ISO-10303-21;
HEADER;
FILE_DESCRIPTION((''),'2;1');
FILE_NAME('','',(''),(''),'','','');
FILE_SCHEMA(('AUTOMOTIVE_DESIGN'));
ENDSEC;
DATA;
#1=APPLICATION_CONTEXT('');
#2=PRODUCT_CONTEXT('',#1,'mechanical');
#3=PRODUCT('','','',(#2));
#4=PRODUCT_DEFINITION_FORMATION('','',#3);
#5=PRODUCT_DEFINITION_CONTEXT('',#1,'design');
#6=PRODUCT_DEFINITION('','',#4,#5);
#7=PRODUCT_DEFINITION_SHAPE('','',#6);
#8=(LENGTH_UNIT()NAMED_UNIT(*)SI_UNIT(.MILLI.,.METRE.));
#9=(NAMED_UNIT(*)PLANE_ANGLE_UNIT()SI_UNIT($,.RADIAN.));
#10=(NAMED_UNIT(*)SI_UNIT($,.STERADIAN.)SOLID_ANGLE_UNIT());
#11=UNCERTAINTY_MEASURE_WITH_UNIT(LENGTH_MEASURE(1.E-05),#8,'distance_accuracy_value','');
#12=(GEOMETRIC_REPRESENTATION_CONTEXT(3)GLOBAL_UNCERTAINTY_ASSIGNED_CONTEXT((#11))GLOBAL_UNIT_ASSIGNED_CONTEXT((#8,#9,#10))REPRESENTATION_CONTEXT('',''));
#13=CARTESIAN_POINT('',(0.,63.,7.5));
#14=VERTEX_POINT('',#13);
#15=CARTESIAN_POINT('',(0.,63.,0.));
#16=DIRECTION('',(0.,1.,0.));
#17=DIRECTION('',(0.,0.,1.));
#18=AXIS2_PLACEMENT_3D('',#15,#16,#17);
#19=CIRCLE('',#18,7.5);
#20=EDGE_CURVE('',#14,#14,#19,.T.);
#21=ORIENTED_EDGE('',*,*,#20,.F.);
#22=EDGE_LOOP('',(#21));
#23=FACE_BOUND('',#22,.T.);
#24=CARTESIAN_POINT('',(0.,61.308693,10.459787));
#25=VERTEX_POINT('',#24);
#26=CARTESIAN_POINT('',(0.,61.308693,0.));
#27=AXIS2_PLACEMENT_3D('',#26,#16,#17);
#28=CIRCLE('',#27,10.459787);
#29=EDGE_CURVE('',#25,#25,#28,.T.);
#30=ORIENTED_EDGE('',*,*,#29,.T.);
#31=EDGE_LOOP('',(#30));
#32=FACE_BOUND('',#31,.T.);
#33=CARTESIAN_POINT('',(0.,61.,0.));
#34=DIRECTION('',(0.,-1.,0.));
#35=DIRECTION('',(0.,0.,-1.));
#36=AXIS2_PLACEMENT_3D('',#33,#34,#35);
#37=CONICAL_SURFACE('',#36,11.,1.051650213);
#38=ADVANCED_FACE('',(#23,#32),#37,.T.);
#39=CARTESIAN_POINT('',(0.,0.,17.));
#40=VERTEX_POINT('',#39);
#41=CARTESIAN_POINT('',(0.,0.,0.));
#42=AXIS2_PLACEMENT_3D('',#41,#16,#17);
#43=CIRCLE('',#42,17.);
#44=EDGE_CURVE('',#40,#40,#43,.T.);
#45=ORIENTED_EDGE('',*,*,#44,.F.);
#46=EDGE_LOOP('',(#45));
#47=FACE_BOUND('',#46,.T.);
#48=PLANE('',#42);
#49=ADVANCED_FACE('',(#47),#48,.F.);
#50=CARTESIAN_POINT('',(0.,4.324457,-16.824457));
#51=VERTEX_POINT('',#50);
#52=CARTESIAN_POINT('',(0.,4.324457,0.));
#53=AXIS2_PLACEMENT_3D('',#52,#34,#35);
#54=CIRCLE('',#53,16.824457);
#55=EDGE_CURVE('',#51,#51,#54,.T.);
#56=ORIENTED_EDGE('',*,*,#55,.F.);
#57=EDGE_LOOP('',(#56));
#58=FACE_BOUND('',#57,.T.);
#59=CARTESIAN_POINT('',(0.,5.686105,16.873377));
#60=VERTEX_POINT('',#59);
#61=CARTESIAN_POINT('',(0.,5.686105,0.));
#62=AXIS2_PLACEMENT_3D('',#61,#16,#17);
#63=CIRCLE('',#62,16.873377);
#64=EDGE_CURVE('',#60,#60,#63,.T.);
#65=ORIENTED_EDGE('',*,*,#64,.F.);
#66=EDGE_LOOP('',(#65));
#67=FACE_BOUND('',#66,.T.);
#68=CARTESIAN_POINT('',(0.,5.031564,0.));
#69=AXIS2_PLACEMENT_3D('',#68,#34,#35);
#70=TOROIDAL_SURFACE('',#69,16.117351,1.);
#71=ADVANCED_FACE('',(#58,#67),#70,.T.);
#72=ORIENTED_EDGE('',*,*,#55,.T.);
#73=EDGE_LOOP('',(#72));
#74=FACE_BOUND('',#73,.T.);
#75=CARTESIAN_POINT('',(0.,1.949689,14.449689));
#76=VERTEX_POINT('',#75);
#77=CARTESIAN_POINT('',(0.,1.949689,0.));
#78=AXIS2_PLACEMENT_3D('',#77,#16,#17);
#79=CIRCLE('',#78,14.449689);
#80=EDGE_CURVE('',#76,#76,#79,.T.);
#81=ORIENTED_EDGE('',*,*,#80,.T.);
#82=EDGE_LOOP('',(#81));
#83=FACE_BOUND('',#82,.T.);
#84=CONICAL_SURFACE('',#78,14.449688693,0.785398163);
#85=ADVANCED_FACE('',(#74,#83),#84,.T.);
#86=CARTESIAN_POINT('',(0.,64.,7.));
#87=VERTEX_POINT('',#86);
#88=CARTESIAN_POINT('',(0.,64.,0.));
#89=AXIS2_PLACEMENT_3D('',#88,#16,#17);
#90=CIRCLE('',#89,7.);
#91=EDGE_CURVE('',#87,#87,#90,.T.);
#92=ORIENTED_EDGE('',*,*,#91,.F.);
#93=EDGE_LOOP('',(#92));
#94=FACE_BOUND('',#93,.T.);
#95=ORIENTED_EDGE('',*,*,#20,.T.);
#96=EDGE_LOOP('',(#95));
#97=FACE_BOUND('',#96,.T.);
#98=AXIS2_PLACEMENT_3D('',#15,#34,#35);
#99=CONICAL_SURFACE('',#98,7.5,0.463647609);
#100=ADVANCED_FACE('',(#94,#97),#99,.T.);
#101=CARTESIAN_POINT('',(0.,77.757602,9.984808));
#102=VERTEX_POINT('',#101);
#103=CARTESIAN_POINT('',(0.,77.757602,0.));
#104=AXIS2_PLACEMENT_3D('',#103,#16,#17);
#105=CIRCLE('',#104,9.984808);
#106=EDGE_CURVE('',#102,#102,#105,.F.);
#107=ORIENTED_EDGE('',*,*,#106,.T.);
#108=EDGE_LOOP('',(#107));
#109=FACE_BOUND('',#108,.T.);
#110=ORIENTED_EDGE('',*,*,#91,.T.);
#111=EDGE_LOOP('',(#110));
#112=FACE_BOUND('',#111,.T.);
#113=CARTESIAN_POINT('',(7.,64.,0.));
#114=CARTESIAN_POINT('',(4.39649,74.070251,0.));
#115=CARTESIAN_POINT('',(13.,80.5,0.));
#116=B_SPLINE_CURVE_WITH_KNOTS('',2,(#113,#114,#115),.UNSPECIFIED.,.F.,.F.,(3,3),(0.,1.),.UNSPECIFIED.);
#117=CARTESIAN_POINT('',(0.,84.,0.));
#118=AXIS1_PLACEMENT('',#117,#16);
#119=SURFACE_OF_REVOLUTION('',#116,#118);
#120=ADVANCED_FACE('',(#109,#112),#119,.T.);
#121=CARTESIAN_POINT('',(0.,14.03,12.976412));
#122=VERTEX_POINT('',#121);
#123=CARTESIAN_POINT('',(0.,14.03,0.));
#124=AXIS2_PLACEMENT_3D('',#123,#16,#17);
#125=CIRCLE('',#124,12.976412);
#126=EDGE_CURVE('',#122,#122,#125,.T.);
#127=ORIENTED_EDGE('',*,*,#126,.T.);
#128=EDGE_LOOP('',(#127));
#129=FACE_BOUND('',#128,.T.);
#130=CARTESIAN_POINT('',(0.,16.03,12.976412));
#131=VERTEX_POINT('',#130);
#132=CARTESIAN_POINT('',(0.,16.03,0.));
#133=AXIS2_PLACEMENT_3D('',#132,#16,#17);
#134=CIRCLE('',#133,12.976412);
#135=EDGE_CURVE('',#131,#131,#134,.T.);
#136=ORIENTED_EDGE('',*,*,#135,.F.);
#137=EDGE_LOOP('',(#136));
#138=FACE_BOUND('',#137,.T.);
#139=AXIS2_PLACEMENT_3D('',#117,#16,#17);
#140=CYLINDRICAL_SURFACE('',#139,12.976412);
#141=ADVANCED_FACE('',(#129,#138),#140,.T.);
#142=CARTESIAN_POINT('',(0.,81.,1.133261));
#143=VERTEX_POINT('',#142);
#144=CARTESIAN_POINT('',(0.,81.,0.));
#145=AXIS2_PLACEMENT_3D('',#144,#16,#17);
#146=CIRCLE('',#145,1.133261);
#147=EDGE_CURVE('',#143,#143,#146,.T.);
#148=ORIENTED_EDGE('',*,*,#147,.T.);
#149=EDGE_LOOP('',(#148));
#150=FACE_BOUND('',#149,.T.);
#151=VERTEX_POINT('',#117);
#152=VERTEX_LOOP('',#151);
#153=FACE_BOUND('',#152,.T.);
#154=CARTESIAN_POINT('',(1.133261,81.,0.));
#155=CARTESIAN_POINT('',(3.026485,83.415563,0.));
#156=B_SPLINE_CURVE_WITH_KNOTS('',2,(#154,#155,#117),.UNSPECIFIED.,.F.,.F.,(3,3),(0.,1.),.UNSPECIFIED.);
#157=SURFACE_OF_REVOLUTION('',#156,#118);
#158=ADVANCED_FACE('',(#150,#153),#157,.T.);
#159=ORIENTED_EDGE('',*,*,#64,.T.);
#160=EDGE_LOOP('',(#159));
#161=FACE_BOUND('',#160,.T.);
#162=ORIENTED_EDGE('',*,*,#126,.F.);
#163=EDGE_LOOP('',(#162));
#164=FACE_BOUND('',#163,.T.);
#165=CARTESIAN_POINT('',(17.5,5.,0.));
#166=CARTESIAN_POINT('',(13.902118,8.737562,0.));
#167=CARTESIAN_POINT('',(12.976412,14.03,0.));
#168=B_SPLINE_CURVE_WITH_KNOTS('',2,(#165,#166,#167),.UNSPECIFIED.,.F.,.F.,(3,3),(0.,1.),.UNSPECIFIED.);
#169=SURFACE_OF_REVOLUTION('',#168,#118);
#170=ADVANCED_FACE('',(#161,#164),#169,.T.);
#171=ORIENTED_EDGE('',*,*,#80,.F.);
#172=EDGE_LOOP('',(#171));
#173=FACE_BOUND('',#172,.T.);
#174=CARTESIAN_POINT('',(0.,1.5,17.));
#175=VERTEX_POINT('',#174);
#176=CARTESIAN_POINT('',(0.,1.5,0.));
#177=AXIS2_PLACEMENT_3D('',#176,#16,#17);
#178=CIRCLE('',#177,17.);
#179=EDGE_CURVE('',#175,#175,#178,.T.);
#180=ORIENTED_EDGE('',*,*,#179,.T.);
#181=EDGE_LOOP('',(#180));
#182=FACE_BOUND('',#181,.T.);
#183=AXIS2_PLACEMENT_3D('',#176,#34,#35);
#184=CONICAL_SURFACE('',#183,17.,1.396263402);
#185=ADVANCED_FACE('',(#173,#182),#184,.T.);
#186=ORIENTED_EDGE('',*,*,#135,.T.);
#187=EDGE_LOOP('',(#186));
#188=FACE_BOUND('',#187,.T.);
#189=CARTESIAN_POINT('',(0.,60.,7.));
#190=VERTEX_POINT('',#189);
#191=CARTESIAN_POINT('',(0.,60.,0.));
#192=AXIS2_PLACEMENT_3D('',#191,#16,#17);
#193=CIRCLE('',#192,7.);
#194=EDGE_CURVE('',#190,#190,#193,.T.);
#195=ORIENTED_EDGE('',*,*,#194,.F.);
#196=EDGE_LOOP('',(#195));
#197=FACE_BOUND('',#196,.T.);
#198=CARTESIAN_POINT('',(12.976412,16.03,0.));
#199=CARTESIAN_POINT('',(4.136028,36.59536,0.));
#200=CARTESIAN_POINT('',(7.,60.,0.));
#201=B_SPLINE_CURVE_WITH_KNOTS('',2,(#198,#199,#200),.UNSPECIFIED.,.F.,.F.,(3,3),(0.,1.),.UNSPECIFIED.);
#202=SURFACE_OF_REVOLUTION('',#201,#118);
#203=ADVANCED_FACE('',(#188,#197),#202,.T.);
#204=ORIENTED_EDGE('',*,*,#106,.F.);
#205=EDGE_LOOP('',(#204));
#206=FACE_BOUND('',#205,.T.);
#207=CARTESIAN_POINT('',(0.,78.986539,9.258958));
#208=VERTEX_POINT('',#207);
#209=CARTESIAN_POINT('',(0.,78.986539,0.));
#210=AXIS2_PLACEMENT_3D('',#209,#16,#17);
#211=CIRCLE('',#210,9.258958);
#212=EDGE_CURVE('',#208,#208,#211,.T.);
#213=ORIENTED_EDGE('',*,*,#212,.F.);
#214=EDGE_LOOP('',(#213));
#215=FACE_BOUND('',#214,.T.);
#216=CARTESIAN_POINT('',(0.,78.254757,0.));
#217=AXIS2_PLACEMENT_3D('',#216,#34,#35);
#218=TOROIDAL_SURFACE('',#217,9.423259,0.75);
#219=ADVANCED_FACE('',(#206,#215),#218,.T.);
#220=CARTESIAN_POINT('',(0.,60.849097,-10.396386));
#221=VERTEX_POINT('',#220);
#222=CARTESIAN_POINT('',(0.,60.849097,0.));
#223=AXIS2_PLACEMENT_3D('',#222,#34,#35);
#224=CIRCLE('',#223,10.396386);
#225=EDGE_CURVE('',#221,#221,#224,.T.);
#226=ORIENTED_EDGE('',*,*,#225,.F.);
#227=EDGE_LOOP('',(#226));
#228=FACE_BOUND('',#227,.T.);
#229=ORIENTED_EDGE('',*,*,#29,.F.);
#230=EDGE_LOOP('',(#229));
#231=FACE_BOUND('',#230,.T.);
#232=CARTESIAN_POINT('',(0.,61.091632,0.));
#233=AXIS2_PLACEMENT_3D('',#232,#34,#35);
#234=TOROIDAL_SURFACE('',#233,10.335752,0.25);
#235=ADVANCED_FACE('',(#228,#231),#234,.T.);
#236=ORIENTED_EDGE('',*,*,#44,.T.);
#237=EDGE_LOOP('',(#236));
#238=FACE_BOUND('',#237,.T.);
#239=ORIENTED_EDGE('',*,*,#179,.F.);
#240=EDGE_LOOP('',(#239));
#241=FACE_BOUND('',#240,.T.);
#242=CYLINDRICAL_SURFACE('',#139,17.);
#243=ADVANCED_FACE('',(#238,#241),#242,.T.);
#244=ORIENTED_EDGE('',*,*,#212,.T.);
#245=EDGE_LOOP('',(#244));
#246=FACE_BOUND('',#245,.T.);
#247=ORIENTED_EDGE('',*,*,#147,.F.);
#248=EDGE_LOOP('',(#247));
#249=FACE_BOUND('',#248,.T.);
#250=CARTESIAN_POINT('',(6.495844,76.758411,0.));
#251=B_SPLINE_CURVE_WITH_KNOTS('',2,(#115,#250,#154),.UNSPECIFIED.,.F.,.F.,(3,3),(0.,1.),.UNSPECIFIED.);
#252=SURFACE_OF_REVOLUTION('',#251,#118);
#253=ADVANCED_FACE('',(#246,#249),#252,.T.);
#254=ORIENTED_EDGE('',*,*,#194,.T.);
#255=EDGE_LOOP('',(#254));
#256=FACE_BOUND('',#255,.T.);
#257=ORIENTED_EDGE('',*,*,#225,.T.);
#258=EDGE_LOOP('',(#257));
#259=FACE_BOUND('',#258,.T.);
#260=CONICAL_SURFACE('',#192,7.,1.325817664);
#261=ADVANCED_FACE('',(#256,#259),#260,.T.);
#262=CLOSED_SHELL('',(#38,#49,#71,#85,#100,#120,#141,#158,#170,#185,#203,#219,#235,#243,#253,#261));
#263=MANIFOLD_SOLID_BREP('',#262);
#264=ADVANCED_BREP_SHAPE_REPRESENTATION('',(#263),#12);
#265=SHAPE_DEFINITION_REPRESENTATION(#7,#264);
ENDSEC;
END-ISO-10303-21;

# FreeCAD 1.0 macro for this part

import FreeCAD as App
import Part
import Sketcher
Q = App.Units.Quantity


def edges_at(feature, points):
    """Names of the edges that pass closest to the given points."""
    edges = feature.Shape.Edges
    near = lambda p: min(range(len(edges)), key=lambda i: edges[i].distToShape(Part.Vertex(*p))[0])
    return sorted({f"Edge{near(p) + 1}" for p in points})

doc = App.newDocument("Part")
body = doc.addObject("PartDesign::Body", "Body")

# Sketch on XY plane
sketch1 = body.newObject("Sketcher::SketchObject", "Sketch")
sketch1.AttachmentSupport = (doc.getObject("XY_Plane"), [""])
sketch1.MapMode = "FlatFace"
sketch1.addGeometry([
    Part.LineSegment(App.Vector(0, 0, 0), App.Vector(17, 0, 0)),  # 0
    Part.LineSegment(App.Vector(17, 0, 0), App.Vector(17, 1.5, 0)),  # 1
    Part.LineSegment(App.Vector(17, 1.5, 0), App.Vector(14.449689, 1.949689, 0)),  # 2
    Part.LineSegment(App.Vector(14.449689, 1.949689, 0), App.Vector(17.5, 5, 0)),  # 3
    Part.BSplineCurve([App.Vector(12.976412, 14.03, 0), App.Vector(13.902118, 8.737562, 0), App.Vector(17.5, 5, 0)], [3, 3], [0, 1], False, 2, [1, 1, 1], False),  # 4
    Part.LineSegment(App.Vector(12.976412, 14.03, 0), App.Vector(12.976412, 16.03, 0)),  # 5
    Part.BSplineCurve([App.Vector(7, 60, 0), App.Vector(4.136028, 36.59536, 0), App.Vector(12.976412, 16.03, 0)], [3, 3], [0, 1], False, 2, [1, 1, 1], False),  # 6
    Part.LineSegment(App.Vector(7, 60, 0), App.Vector(11, 61, 0)),  # 7
    Part.LineSegment(App.Vector(11, 61, 0), App.Vector(7.5, 63, 0)),  # 8
    Part.LineSegment(App.Vector(7.5, 63, 0), App.Vector(7, 64, 0)),  # 9
    Part.BSplineCurve([App.Vector(7, 64, 0), App.Vector(4.39649, 74.070251, 0), App.Vector(13, 80.5, 0)], [3, 3], [0, 1], False, 2, [1, 1, 1], False),  # 10
    Part.BSplineCurve([App.Vector(13, 80.5, 0), App.Vector(6.495844, 76.758411, 0), App.Vector(1.133261, 81, 0)], [3, 3], [0, 1], False, 2, [1, 1, 1], False),  # 11
    Part.BSplineCurve([App.Vector(0, 84, 0), App.Vector(3.026485, 83.415563, 0), App.Vector(1.133261, 81, 0)], [3, 3], [0, 1], False, 2, [1, 1, 1], False),  # 12
    Part.LineSegment(App.Vector(0, 84, 0), App.Vector(0, 0, 0)),  # 13
], False)
sketch1.addConstraint([
    Sketcher.Constraint("Block", 4),
    Sketcher.Constraint("Block", 6),
    Sketcher.Constraint("Block", 10),
    Sketcher.Constraint("Block", 11),
    Sketcher.Constraint("Block", 12),
    Sketcher.Constraint("Coincident", 0, 2, 1, 1),
    Sketcher.Constraint("Coincident", 1, 2, 2, 1),
    Sketcher.Constraint("Coincident", 2, 2, 3, 1),
    Sketcher.Constraint("Coincident", 3, 2, 4, 2),
    Sketcher.Constraint("Coincident", 4, 1, 5, 1),
    Sketcher.Constraint("Coincident", 5, 2, 6, 2),
    Sketcher.Constraint("Coincident", 6, 1, 7, 1),
    Sketcher.Constraint("Coincident", 7, 2, 8, 1),
    Sketcher.Constraint("Coincident", 8, 2, 9, 1),
    Sketcher.Constraint("Coincident", 9, 2, 10, 1),
    Sketcher.Constraint("Coincident", 12, 1, 13, 1),
    Sketcher.Constraint("Coincident", 13, 2, 0, 1),
    Sketcher.Constraint("Horizontal", 0),
    Sketcher.Constraint("Vertical", 1),
    Sketcher.Constraint("Vertical", 13),
    Sketcher.Constraint("PointOnObject", 0, 2, -1),
    Sketcher.Constraint("DistanceX", 0, 1, 0, 2, Q("17 mm")),
    Sketcher.Constraint("DistanceY", 1, 1, 1, 2, Q("1.5 mm")),
    Sketcher.Constraint("DistanceX", -1, 1, 7, 2, Q("11 mm")),
    Sketcher.Constraint("DistanceY", -1, 1, 7, 2, Q("61 mm")),
    Sketcher.Constraint("DistanceY", -1, 1, 8, 2, Q("63 mm")),
    Sketcher.Constraint("DistanceX", 8, 2, 3, 2, Q("10 mm")),
    Sketcher.Constraint("Distance", 3, Q("4.313792 mm")),
    Sketcher.Constraint("DistanceX", -1, 1, 2, 2, Q("14.449689 mm")),
])
revolution = body.newObject("PartDesign::Revolution", "Revolution")
revolution.Profile = sketch1
revolution.ReferenceAxis = (sketch1, ["V_Axis"])
revolution.Angle = 360
doc.recompute()

fillet = body.newObject("PartDesign::Fillet", "Fillet")
fillet.Base = (revolution, edges_at(revolution, [(0, 5, -17.5)]))
fillet.Radius = 1
doc.recompute()

fillet2 = body.newObject("PartDesign::Fillet", "Fillet001")
fillet2.Base = (fillet, edges_at(fillet, [(0, 80.5, -13)]))
fillet2.Radius = 0.75
doc.recompute()

fillet3 = body.newObject("PartDesign::Fillet", "Fillet002")
fillet3.Base = (fillet2, edges_at(fillet2, [(0, 61, -11)]))
fillet3.Radius = 0.25

doc.recompute()
